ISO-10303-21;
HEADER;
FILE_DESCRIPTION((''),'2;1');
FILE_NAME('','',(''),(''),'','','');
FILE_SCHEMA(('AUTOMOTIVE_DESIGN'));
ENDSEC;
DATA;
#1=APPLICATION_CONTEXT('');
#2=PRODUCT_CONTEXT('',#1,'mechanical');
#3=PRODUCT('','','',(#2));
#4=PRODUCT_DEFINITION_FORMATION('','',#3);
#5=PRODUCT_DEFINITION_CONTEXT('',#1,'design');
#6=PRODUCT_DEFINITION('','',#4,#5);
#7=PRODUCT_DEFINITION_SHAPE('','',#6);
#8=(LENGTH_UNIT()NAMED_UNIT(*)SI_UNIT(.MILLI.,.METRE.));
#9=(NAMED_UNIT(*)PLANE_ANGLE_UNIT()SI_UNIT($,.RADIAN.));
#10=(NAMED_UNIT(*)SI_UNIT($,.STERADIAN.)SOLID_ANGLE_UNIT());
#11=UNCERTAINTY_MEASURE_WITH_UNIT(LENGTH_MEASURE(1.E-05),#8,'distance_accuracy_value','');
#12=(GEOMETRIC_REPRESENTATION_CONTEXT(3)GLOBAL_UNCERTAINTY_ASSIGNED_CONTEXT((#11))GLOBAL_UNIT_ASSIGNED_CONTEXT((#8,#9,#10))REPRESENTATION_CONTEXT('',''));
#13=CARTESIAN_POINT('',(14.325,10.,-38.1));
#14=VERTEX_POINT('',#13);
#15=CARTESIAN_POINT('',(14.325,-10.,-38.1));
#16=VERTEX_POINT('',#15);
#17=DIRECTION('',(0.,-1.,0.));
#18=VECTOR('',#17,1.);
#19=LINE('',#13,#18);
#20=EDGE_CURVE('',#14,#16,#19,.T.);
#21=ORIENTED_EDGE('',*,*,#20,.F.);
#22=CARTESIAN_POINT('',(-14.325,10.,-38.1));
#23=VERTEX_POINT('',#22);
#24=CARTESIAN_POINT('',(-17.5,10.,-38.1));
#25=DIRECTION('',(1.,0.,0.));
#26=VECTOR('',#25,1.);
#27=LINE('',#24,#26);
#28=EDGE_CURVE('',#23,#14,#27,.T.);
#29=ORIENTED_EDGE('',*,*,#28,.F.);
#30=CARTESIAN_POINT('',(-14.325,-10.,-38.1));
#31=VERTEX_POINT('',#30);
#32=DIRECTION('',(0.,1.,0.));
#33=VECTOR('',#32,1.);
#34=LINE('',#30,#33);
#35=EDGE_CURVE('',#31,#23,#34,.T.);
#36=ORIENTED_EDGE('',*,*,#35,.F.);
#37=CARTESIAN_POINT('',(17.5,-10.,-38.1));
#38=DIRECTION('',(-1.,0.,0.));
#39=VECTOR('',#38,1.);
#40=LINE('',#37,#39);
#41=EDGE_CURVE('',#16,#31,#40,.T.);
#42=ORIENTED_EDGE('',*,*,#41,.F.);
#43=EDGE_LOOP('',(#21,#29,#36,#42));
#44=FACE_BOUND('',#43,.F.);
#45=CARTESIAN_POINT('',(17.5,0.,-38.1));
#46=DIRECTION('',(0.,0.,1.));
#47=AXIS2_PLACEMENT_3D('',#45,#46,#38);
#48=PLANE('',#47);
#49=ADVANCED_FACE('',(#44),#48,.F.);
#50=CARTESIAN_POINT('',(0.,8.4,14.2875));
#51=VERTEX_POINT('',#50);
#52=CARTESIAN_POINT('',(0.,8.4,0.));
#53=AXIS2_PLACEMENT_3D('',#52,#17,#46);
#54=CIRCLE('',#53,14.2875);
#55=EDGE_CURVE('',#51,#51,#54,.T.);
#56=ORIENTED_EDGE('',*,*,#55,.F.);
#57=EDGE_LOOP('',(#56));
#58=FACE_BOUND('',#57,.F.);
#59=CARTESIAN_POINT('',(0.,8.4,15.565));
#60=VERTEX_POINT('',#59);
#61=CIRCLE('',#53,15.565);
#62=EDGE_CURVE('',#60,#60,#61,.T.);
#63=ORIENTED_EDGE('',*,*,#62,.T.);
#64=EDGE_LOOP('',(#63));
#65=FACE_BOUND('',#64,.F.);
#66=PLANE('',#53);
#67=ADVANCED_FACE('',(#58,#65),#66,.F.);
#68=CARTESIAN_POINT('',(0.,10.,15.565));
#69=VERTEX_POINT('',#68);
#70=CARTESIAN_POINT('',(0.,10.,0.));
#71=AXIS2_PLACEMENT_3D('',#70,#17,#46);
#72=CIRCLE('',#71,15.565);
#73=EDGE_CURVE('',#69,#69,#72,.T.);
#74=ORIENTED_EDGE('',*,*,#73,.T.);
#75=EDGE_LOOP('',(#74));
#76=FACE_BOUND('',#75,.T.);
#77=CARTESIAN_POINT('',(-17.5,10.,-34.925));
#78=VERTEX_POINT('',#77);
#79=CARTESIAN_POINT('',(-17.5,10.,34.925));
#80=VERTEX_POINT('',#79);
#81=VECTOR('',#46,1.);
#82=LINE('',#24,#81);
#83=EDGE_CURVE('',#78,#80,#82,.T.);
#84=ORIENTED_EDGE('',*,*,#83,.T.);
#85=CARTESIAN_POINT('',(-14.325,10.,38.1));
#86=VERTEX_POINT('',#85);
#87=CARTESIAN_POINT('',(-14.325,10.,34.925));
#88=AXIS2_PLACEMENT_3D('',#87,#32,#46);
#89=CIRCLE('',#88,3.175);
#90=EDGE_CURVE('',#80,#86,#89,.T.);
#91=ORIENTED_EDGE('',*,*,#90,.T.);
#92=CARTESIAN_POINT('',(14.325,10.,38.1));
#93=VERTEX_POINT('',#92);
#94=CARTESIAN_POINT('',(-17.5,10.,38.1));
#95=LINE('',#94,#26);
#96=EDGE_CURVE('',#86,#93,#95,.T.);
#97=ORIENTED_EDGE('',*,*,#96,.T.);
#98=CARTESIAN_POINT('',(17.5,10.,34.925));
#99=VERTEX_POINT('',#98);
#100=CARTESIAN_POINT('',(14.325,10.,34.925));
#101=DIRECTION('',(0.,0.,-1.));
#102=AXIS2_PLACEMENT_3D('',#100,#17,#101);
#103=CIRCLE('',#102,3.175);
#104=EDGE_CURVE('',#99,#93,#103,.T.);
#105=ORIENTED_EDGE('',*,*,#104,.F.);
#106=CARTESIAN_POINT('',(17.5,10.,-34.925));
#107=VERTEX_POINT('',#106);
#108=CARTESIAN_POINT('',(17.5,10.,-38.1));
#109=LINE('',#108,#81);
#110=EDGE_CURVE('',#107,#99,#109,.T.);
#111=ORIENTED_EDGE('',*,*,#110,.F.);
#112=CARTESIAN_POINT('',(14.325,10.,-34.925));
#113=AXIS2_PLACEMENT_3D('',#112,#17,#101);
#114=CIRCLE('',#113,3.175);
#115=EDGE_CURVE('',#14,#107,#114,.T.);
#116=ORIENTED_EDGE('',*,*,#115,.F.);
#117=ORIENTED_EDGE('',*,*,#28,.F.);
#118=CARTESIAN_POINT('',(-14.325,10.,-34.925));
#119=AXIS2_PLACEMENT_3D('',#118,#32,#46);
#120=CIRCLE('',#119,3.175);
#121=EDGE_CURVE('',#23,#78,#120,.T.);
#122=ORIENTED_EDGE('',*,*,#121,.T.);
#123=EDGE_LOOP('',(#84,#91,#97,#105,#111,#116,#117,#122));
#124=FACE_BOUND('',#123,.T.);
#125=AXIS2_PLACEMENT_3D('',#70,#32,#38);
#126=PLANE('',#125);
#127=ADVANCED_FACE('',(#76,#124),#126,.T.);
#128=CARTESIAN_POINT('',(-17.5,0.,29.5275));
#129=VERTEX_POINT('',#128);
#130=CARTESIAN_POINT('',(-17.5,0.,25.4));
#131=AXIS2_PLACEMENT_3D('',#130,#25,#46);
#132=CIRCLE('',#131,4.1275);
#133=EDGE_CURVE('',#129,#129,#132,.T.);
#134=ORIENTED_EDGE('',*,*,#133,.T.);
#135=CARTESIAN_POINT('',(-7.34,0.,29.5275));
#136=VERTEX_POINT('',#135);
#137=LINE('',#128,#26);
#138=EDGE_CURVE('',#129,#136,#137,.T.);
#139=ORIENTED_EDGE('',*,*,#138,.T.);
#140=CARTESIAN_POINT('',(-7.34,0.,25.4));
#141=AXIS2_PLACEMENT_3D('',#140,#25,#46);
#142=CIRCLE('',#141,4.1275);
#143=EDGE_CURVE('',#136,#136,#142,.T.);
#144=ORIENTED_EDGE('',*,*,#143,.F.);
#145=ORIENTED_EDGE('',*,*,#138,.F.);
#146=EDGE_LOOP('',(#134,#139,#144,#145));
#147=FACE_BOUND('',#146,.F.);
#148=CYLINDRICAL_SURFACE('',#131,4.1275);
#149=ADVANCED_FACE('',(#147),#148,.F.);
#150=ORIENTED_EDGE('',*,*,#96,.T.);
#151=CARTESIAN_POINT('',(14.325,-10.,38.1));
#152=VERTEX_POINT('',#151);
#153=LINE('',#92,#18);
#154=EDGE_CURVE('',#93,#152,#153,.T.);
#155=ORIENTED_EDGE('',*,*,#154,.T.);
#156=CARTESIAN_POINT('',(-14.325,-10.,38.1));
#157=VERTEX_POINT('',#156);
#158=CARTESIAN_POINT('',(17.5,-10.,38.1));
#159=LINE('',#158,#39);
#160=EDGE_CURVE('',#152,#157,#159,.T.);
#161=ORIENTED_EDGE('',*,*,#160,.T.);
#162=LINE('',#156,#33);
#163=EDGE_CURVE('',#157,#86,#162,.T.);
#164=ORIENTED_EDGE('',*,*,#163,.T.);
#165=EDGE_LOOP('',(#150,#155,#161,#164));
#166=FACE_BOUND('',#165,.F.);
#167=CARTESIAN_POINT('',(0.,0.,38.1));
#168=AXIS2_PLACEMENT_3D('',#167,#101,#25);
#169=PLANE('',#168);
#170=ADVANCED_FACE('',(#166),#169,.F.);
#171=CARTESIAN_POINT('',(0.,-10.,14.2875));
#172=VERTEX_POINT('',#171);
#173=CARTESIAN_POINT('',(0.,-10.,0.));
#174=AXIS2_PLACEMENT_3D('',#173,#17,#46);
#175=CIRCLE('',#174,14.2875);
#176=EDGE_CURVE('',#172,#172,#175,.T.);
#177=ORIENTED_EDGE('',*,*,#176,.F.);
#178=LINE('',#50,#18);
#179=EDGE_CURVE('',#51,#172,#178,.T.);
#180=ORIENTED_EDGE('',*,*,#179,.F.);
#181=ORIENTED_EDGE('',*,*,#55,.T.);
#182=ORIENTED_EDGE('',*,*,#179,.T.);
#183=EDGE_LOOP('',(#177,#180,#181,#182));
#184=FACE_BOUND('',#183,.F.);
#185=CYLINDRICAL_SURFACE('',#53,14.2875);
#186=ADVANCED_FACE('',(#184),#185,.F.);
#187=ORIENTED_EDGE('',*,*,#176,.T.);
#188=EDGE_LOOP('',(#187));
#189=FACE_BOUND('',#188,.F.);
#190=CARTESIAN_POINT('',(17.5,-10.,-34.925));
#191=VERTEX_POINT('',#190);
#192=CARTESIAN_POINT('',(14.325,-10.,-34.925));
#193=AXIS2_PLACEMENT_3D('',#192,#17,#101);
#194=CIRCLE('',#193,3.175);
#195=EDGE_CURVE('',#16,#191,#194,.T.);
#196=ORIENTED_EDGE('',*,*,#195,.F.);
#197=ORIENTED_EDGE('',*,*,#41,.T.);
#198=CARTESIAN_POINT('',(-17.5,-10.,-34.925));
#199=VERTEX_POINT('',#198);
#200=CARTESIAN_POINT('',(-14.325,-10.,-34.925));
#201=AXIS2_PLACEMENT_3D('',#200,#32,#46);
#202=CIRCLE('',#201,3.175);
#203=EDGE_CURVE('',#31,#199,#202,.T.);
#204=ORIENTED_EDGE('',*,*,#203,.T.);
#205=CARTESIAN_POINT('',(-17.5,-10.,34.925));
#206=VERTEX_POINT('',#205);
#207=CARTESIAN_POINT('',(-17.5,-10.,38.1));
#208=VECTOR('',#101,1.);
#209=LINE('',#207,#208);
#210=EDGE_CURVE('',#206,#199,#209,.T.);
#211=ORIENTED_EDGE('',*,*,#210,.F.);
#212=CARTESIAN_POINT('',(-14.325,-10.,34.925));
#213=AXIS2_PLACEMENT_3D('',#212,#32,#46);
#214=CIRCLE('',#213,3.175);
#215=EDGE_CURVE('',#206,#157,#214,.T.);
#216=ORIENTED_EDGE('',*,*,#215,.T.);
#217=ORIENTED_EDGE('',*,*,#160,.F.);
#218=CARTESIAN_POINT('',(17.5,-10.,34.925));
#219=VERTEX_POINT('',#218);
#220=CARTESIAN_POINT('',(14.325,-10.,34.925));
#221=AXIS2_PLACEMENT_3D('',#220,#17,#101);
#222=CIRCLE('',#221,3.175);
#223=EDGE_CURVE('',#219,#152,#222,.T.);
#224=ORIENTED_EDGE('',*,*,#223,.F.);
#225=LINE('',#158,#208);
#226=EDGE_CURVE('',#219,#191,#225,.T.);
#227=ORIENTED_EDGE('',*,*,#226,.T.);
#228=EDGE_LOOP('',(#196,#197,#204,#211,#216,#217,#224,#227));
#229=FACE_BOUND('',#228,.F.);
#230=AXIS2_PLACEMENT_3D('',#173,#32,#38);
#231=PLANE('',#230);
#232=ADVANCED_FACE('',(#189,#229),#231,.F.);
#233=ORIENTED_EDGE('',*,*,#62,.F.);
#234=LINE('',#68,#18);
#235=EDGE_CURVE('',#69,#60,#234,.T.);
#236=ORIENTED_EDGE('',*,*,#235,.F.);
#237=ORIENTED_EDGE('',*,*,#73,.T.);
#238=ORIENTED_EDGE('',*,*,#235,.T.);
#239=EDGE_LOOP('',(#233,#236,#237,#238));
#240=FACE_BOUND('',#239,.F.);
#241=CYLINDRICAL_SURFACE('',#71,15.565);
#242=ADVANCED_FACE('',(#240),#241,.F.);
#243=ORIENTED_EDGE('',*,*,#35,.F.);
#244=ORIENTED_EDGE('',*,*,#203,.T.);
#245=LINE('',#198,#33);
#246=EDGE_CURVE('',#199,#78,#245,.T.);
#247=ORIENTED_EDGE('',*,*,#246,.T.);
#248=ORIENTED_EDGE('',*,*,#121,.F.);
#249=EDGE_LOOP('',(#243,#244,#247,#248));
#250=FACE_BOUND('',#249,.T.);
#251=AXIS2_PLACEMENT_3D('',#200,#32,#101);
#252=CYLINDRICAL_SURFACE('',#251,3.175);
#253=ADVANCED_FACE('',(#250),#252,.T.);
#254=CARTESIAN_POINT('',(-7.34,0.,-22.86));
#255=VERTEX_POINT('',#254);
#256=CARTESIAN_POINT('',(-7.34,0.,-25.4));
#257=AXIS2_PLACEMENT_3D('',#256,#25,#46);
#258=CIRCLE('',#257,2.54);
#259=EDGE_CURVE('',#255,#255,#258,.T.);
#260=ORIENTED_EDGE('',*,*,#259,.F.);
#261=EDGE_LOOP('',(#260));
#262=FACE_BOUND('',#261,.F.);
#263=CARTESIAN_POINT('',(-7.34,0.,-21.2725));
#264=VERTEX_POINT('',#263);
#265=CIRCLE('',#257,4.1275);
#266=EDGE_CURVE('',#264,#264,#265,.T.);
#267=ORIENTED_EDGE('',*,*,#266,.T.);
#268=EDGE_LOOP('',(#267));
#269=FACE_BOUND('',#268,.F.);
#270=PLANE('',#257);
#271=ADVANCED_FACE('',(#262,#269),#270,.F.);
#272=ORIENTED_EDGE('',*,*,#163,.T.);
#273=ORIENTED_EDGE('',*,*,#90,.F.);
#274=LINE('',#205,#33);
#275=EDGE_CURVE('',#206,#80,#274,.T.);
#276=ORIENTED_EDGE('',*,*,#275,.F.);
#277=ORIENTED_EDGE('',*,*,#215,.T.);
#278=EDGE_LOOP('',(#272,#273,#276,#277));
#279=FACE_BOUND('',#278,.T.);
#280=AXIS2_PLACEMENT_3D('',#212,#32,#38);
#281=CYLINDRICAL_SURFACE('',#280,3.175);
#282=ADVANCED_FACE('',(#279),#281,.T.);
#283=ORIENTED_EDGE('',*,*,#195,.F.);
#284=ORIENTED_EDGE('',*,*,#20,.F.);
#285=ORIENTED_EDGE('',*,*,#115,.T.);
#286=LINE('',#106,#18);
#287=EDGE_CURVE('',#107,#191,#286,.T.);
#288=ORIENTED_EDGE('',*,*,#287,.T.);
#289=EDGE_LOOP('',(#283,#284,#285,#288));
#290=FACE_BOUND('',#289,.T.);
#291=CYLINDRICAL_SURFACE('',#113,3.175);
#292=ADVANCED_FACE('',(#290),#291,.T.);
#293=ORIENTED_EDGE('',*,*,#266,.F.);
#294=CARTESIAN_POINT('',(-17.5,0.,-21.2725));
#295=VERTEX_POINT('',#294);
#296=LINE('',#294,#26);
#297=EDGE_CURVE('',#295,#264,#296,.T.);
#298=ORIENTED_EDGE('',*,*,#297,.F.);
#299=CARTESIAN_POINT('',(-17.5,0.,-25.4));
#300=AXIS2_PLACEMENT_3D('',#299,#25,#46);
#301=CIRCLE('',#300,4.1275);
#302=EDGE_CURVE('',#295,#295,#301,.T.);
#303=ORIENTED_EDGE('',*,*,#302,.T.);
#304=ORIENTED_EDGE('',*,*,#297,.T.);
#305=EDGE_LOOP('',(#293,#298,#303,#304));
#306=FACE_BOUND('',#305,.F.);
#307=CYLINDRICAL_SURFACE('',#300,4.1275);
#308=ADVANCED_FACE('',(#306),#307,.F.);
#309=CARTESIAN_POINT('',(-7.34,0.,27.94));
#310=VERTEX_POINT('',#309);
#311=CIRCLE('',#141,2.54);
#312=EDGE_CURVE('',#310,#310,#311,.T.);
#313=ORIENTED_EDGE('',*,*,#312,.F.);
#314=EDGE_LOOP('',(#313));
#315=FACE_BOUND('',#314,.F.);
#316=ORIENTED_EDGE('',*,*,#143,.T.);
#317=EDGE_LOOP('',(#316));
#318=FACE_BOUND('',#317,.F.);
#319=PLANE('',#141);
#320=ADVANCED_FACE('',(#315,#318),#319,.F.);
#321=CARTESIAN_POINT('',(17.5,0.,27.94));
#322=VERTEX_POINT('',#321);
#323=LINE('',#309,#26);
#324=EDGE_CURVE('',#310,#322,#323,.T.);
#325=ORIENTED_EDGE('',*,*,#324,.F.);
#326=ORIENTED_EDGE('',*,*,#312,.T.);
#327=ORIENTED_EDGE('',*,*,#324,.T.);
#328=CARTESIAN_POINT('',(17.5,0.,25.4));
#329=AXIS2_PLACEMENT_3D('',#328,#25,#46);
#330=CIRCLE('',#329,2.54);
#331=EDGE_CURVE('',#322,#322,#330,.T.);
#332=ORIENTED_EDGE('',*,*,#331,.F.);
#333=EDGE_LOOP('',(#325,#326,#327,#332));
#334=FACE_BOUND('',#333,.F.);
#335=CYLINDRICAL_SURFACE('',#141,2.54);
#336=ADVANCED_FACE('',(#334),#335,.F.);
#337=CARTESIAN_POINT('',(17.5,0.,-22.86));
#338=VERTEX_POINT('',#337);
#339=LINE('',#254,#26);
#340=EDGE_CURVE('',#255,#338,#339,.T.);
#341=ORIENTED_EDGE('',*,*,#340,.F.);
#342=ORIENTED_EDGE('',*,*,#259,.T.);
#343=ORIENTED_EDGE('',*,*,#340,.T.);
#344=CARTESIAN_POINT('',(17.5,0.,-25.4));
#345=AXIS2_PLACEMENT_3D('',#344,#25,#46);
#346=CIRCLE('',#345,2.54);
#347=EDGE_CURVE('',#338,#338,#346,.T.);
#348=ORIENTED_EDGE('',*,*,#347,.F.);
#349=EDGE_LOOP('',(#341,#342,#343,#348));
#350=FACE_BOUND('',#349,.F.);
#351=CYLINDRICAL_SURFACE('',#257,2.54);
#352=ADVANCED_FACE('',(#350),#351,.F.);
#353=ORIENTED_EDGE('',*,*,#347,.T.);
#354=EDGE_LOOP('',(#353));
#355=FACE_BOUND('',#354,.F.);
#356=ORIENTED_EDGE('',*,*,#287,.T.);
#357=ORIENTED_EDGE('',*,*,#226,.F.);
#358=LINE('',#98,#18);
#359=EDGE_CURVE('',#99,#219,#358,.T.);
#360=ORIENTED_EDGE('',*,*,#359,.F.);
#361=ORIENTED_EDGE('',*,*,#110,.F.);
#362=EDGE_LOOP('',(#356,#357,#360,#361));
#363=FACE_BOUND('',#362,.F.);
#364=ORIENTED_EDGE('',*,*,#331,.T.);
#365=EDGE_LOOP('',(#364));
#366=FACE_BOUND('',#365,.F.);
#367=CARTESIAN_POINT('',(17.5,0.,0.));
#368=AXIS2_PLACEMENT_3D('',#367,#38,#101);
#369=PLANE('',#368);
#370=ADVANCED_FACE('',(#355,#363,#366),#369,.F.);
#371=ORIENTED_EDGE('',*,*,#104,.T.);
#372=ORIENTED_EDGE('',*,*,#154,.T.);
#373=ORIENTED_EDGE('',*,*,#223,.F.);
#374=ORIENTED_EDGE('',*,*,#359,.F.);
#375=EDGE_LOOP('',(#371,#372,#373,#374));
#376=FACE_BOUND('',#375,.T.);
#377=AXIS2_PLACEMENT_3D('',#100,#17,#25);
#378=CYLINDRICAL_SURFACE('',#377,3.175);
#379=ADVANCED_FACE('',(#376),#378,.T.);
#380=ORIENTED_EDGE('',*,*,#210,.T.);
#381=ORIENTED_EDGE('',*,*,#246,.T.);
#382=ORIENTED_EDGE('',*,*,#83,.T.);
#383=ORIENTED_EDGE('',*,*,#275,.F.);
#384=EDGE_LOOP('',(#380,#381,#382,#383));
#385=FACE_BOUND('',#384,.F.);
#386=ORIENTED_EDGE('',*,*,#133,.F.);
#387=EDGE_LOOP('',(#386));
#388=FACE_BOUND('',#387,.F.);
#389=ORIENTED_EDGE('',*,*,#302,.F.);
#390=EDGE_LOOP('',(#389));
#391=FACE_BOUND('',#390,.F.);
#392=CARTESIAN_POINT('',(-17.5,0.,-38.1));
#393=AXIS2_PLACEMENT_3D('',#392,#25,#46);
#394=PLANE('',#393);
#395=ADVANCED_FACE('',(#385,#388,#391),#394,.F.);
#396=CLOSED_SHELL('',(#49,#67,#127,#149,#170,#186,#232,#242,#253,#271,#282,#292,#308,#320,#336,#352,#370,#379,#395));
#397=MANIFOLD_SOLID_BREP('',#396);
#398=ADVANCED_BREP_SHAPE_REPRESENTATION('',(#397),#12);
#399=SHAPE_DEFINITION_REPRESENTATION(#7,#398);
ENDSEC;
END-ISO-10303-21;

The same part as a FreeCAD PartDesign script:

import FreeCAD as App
import Part
import Sketcher
from FreeCAD import Vector
Q = App.Units.Quantity


def edges_at(feature, points):
    """Names of the edges that pass closest to the given points."""
    edges = feature.Shape.Edges
    near = lambda p: min(range(len(edges)), key=lambda i: edges[i].distToShape(Part.Vertex(*p))[0])
    return sorted({f"Edge{near(p) + 1}" for p in points})


def add_polygon(sketch, points):
    """Adds a closed chain of lines whose ends are joined by coincident constraints."""
    first, n = sketch.GeometryCount, len(points)
    for a, b in zip(points, points[1:] + points[:1]):
        sketch.addGeometry(Part.LineSegment(App.Vector(*a, 0), App.Vector(*b, 0)), False)
    for i in range(n):
        sketch.addConstraint(Sketcher.Constraint("Coincident", first + i, 2, first + (i + 1) % n, 1))

doc = App.newDocument("Part")
body = doc.addObject("PartDesign::Body", "Body")

# Sketch on XZ plane
sketch1 = body.newObject("Sketcher::SketchObject", "Sketch")
sketch1.AttachmentSupport = (doc.getObject("XZ_Plane"), [""])
sketch1.MapMode = "FlatFace"
add_polygon(sketch1, [(17.5, -38.1), (-17.5, -38.1), (-17.5, 38.1), (17.5, 38.1)])  # lines 0-3
sketch1.addConstraint([
    Sketcher.Constraint("Horizontal", 0),
    Sketcher.Constraint("Vertical", 1),
    Sketcher.Constraint("Horizontal", 2),
    Sketcher.Constraint("Vertical", 3),
    Sketcher.Constraint("Symmetric", 0, 2, 2, 2, -1, 1),
    Sketcher.Constraint("DistanceY", 1, 1, 1, 2, Q("3 in")),
    Sketcher.Constraint("DistanceX", 0, 2, 0, 1, 35.0),
])
pad1 = body.newObject("PartDesign::Pad", "Pad")
pad1.Profile = sketch1
pad1.Length = Q("0.7874016 in")
pad1.Midplane = True

# Sketch on XZ plane
sketch2 = body.newObject("Sketcher::SketchObject", "Sketch001")
sketch2.AttachmentSupport = (doc.getObject("XZ_Plane"), [""])
sketch2.MapMode = "FlatFace"
sketch2.AttachmentOffset = App.Placement(Vector(0, 0, -0.3937008 * 25.4), App.Rotation())
sketch2.addGeometry(Part.Circle(Vector(0, 0, 0), Vector(0, 0, 1), 14.2875), False)
sketch2.addConstraint([
    Sketcher.Constraint("Coincident", 0, 3, -1, 1),
    Sketcher.Constraint("Diameter", 0, Q("1.125 in")),
])
doc.recompute()
hole = body.newObject("PartDesign::Hole", "Hole")
hole.Profile = sketch2
hole.ThreadType = "None"
hole.Diameter = Q("1.125 in")
hole.DepthType = "ThroughAll"
hole.HoleCutType = "Counterbore"
hole.HoleCutDiameter = Q("1.2255906 in")
hole.HoleCutDepth = Q("0.0629921 in")
hole.Reversed = True
doc.recompute()

fillet = body.newObject("PartDesign::Fillet", "Fillet")
fillet.Base = (hole, edges_at(hole, [
    (17.5, 0, 38.1),
    (17.5, 0, -38.1),
    (-17.5, 0, 38.1),
    (-17.5, 0, -38.1),
]))
fillet.Radius = Q("0.125 in")

# Sketch on YZ plane
sketch3 = body.newObject("Sketcher::SketchObject", "Sketch002")
sketch3.AttachmentSupport = (doc.getObject("YZ_Plane"), [""])
sketch3.MapMode = "FlatFace"
sketch3.AttachmentOffset = App.Placement(Vector(0, 0, -17.5), App.Rotation())
sketch3.addGeometry([
    Part.Circle(Vector(0, -25.4, 0), Vector(0, 0, 1), 2.54),
    Part.Circle(Vector(0, 25.4, 0), Vector(0, 0, 1), 2.54),
], False)
sketch3.addConstraint([
    Sketcher.Constraint("Equal", 0, 1),
    Sketcher.Constraint("Symmetric", 0, 3, 1, 3, -1, 1),
    Sketcher.Constraint("PointOnObject", 0, 3, -2),
    Sketcher.Constraint("Diameter", 0, Q("0.2 in")),
    Sketcher.Constraint("DistanceY", 0, 3, -1, 1, Q("1 in")),
])
doc.recompute()
hole2 = body.newObject("PartDesign::Hole", "Hole001")
hole2.Profile = sketch3
hole2.ThreadType = "None"
hole2.Diameter = Q("0.2 in")
hole2.DepthType = "ThroughAll"
hole2.HoleCutType = "Counterbore"
hole2.HoleCutDiameter = Q("0.325 in")
hole2.HoleCutDepth = Q("0.4 in")
hole2.Reversed = True

doc.recompute()
